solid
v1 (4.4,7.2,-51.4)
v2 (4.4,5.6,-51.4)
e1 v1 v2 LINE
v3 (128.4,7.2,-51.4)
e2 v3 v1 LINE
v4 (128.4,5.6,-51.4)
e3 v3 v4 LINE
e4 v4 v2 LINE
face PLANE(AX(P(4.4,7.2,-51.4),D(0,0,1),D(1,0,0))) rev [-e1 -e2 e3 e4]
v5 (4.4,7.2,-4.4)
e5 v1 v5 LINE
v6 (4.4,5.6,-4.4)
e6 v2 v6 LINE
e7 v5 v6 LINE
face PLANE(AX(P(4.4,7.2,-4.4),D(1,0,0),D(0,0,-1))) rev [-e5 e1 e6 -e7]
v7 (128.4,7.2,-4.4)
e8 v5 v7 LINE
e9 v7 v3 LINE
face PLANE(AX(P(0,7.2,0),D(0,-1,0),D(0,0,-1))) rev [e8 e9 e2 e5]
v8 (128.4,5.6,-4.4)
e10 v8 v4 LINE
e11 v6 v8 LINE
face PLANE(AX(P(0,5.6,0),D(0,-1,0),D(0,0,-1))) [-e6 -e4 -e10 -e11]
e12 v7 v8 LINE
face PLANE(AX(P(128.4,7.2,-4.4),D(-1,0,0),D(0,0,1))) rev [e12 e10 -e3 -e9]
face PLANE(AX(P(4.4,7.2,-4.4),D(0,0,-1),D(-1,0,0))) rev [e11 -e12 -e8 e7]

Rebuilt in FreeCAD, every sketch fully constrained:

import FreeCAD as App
import Part
import Sketcher

V = App.Vector

doc = App.newDocument("Part")
body = doc.addObject("PartDesign::Body", "Body")

# Sketch on XZ plane
sketch1 = body.newObject("Sketcher::SketchObject", "Sketch")
sketch1.AttachmentSupport = (doc.getObject("XZ_Plane"), [""])
sketch1.MapMode = "FlatFace"
sketch1.AttachmentOffset = App.Placement(V(0, 0, -5.6), App.Rotation())
sketch1.addGeometry(Part.LineSegment(V(4.4, -51.4, 0), V(4.4, -4.4, 0)), False)
sketch1.addGeometry(Part.LineSegment(V(4.4, -4.4, 0), V(128.4, -4.4, 0)), False)
sketch1.addGeometry(Part.LineSegment(V(128.4, -4.4, 0), V(128.4, -51.4, 0)), False)
sketch1.addGeometry(Part.LineSegment(V(128.4, -51.4, 0), V(4.4, -51.4, 0)), False)
sketch1.addConstraint(Sketcher.Constraint("Coincident", 0, 2, 1, 1))
sketch1.addConstraint(Sketcher.Constraint("Coincident", 1, 2, 2, 1))
sketch1.addConstraint(Sketcher.Constraint("Coincident", 2, 2, 3, 1))
sketch1.addConstraint(Sketcher.Constraint("Coincident", 3, 2, 0, 1))
sketch1.addConstraint(Sketcher.Constraint("Vertical", 0))
sketch1.addConstraint(Sketcher.Constraint("Horizontal", 1))
sketch1.addConstraint(Sketcher.Constraint("Vertical", 2))
sketch1.addConstraint(Sketcher.Constraint("Horizontal", 3))
sketch1.addConstraint(Sketcher.Constraint("DistanceX", 1, 1, 1, 2, 124.0))
sketch1.addConstraint(Sketcher.Constraint("DistanceY", 0, 1, 0, 2, 47.0))
sketch1.addConstraint(Sketcher.Constraint("DistanceX", -1, 1, 0, 2, 4.4))
sketch1.addConstraint(Sketcher.Constraint("DistanceY", 0, 2, -1, 1, 4.4))
pad1 = body.newObject("PartDesign::Pad", "Pad")
pad1.Profile = sketch1
pad1.Length = 1.6
pad1.Reversed = True

doc.recompute()
